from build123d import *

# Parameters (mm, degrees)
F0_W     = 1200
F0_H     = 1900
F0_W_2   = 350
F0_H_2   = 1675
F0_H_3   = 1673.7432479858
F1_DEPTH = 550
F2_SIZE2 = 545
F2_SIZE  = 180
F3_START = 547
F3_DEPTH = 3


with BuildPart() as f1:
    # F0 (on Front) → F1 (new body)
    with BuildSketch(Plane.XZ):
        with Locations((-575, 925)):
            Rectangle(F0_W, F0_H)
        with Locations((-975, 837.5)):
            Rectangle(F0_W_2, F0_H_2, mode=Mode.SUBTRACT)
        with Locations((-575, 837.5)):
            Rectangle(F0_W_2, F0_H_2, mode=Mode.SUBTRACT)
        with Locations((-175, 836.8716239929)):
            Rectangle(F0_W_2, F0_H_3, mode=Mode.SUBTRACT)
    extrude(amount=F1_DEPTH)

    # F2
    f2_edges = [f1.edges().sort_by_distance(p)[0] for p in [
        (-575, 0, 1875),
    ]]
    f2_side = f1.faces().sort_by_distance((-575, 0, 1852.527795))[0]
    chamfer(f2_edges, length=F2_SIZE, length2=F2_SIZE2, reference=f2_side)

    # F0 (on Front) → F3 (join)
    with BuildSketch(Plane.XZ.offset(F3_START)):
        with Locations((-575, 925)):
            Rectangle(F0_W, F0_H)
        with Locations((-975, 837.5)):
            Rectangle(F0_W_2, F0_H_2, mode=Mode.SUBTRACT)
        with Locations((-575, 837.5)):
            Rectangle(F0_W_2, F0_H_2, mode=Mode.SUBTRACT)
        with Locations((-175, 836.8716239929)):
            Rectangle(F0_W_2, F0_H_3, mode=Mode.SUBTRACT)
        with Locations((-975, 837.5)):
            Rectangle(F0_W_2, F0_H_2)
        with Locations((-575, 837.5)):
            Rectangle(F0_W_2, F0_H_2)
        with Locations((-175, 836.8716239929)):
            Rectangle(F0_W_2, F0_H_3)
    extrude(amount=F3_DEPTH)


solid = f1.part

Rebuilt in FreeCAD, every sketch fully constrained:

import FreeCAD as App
import Part
import Sketcher
from FreeCAD import Vector


def edges_at(feature, points):
    """Names of the edges that pass closest to the given points."""
    edges = feature.Shape.Edges
    near = lambda p: min(range(len(edges)), key=lambda i: edges[i].distToShape(Part.Vertex(*p))[0])
    return sorted({f"Edge{near(p) + 1}" for p in points})


def add_polygon(sketch, points):
    """Adds a closed chain of lines whose ends are joined by coincident constraints."""
    first, n = sketch.GeometryCount, len(points)
    for a, b in zip(points, points[1:] + points[:1]):
        sketch.addGeometry(Part.LineSegment(App.Vector(*a, 0), App.Vector(*b, 0)), False)
    for i in range(n):
        sketch.addConstraint(Sketcher.Constraint("Coincident", first + i, 2, first + (i + 1) % n, 1))

doc = App.newDocument("Part")
body = doc.addObject("PartDesign::Body", "Body")

# Sketch on XZ plane
sketch1 = body.newObject("Sketcher::SketchObject", "Sketch")
sketch1.AttachmentSupport = (doc.getObject("XZ_Plane"), [""])
sketch1.MapMode = "FlatFace"
add_polygon(sketch1, [(-1175, 1875), (-1175, -25), (25, -25), (25, 1875)])  # lines 0-3
add_polygon(sketch1, [(0, 0), (-350, 0), (-350, 1674), (0, 1674)])  # lines 4-7
add_polygon(sketch1, [(-800, 0), (-1150, 0), (-1150, 1675), (-800, 1675)])  # lines 8-11
add_polygon(sketch1, [(-400, 0), (-750, 0), (-750, 1675), (-400, 1675)])  # lines 12-15
sketch1.addConstraint(Sketcher.Constraint("Vertical", 0))
sketch1.addConstraint(Sketcher.Constraint("Horizontal", 1))
sketch1.addConstraint(Sketcher.Constraint("Vertical", 2))
sketch1.addConstraint(Sketcher.Constraint("Horizontal", 3))
sketch1.addConstraint(Sketcher.Constraint("Horizontal", 4))
sketch1.addConstraint(Sketcher.Constraint("Vertical", 5))
sketch1.addConstraint(Sketcher.Constraint("Horizontal", 6))
sketch1.addConstraint(Sketcher.Constraint("Vertical", 7))
sketch1.addConstraint(Sketcher.Constraint("Horizontal", 8))
sketch1.addConstraint(Sketcher.Constraint("Vertical", 9))
sketch1.addConstraint(Sketcher.Constraint("Horizontal", 10))
sketch1.addConstraint(Sketcher.Constraint("Vertical", 11))
sketch1.addConstraint(Sketcher.Constraint("Horizontal", 12))
sketch1.addConstraint(Sketcher.Constraint("Vertical", 13))
sketch1.addConstraint(Sketcher.Constraint("Horizontal", 14))
sketch1.addConstraint(Sketcher.Constraint("Vertical", 15))
sketch1.addConstraint(Sketcher.Constraint("Coincident", 7, 2, -1, 1))
sketch1.addConstraint(Sketcher.Constraint("PointOnObject", 8, 2, -1))
sketch1.addConstraint(Sketcher.Constraint("PointOnObject", 12, 2, -1))
sketch1.addConstraint(Sketcher.Constraint("Horizontal", 10, 2, 13, 2))
sketch1.addConstraint(Sketcher.Constraint("Equal", 6, 8))
sketch1.addConstraint(Sketcher.Constraint("Equal", 10, 12))
sketch1.addConstraint(Sketcher.Constraint("DistanceX", 1, 1, 1, 2, 1200.0))
sketch1.addConstraint(Sketcher.Constraint("DistanceX", 4, 2, 4, 1, 350.0))
sketch1.addConstraint(Sketcher.Constraint("DistanceY", 0, 2, 0, 1, 1900.0))
sketch1.addConstraint(Sketcher.Constraint("DistanceY", 9, 1, 9, 2, 1675.0))
sketch1.addConstraint(Sketcher.Constraint("DistanceX", 0, 2, -1, 1, 1175.0))
sketch1.addConstraint(Sketcher.Constraint("DistanceY", 0, 2, -1, 1, 25.0))
sketch1.addConstraint(Sketcher.Constraint("DistanceX", 8, 2, -1, 1, 1150.0))
sketch1.addConstraint(Sketcher.Constraint("DistanceX", 12, 2, -1, 1, 750.0))
sketch1.addConstraint(Sketcher.Constraint("DistanceY", 5, 1, 5, 2, 1673.743248))
pad1 = body.newObject("PartDesign::Pad", "Pad")
pad1.Profile = sketch1
pad1.Length = 550
doc.recompute()

chamfer = body.newObject("PartDesign::Chamfer", "Chamfer")
chamfer.Base = (pad1, edges_at(pad1, [(-575, 0, 1875)]))
chamfer.ChamferType = "Two distances"
chamfer.Size = 180
chamfer.Size2 = 545
chamfer.FlipDirection = True

# Sketch on XZ plane
sketch2 = body.newObject("Sketcher::SketchObject", "Sketch001")
sketch2.AttachmentSupport = (doc.getObject("XZ_Plane"), [""])
sketch2.MapMode = "FlatFace"
sketch2.AttachmentOffset = App.Placement(Vector(0, 0, 547), App.Rotation())
add_polygon(sketch2, [(-1175, 1875), (-1175, -25), (25, -25), (25, 1875)])  # lines 0-3
sketch2.addConstraint(Sketcher.Constraint("Vertical", 0))
sketch2.addConstraint(Sketcher.Constraint("Horizontal", 1))
sketch2.addConstraint(Sketcher.Constraint("Vertical", 2))
sketch2.addConstraint(Sketcher.Constraint("Horizontal", 3))
sketch2.addConstraint(Sketcher.Constraint("DistanceX", 1, 1, 1, 2, 1200.0))
sketch2.addConstraint(Sketcher.Constraint("DistanceY", 0, 2, 0, 1, 1900.0))
sketch2.addConstraint(Sketcher.Constraint("DistanceX", 0, 2, -1, 1, 1175.0))
sketch2.addConstraint(Sketcher.Constraint("DistanceY", 0, 2, -1, 1, 25.0))
pad2 = body.newObject("PartDesign::Pad", "Pad001")
pad2.Profile = sketch2
pad2.Length = 3

doc.recompute()
